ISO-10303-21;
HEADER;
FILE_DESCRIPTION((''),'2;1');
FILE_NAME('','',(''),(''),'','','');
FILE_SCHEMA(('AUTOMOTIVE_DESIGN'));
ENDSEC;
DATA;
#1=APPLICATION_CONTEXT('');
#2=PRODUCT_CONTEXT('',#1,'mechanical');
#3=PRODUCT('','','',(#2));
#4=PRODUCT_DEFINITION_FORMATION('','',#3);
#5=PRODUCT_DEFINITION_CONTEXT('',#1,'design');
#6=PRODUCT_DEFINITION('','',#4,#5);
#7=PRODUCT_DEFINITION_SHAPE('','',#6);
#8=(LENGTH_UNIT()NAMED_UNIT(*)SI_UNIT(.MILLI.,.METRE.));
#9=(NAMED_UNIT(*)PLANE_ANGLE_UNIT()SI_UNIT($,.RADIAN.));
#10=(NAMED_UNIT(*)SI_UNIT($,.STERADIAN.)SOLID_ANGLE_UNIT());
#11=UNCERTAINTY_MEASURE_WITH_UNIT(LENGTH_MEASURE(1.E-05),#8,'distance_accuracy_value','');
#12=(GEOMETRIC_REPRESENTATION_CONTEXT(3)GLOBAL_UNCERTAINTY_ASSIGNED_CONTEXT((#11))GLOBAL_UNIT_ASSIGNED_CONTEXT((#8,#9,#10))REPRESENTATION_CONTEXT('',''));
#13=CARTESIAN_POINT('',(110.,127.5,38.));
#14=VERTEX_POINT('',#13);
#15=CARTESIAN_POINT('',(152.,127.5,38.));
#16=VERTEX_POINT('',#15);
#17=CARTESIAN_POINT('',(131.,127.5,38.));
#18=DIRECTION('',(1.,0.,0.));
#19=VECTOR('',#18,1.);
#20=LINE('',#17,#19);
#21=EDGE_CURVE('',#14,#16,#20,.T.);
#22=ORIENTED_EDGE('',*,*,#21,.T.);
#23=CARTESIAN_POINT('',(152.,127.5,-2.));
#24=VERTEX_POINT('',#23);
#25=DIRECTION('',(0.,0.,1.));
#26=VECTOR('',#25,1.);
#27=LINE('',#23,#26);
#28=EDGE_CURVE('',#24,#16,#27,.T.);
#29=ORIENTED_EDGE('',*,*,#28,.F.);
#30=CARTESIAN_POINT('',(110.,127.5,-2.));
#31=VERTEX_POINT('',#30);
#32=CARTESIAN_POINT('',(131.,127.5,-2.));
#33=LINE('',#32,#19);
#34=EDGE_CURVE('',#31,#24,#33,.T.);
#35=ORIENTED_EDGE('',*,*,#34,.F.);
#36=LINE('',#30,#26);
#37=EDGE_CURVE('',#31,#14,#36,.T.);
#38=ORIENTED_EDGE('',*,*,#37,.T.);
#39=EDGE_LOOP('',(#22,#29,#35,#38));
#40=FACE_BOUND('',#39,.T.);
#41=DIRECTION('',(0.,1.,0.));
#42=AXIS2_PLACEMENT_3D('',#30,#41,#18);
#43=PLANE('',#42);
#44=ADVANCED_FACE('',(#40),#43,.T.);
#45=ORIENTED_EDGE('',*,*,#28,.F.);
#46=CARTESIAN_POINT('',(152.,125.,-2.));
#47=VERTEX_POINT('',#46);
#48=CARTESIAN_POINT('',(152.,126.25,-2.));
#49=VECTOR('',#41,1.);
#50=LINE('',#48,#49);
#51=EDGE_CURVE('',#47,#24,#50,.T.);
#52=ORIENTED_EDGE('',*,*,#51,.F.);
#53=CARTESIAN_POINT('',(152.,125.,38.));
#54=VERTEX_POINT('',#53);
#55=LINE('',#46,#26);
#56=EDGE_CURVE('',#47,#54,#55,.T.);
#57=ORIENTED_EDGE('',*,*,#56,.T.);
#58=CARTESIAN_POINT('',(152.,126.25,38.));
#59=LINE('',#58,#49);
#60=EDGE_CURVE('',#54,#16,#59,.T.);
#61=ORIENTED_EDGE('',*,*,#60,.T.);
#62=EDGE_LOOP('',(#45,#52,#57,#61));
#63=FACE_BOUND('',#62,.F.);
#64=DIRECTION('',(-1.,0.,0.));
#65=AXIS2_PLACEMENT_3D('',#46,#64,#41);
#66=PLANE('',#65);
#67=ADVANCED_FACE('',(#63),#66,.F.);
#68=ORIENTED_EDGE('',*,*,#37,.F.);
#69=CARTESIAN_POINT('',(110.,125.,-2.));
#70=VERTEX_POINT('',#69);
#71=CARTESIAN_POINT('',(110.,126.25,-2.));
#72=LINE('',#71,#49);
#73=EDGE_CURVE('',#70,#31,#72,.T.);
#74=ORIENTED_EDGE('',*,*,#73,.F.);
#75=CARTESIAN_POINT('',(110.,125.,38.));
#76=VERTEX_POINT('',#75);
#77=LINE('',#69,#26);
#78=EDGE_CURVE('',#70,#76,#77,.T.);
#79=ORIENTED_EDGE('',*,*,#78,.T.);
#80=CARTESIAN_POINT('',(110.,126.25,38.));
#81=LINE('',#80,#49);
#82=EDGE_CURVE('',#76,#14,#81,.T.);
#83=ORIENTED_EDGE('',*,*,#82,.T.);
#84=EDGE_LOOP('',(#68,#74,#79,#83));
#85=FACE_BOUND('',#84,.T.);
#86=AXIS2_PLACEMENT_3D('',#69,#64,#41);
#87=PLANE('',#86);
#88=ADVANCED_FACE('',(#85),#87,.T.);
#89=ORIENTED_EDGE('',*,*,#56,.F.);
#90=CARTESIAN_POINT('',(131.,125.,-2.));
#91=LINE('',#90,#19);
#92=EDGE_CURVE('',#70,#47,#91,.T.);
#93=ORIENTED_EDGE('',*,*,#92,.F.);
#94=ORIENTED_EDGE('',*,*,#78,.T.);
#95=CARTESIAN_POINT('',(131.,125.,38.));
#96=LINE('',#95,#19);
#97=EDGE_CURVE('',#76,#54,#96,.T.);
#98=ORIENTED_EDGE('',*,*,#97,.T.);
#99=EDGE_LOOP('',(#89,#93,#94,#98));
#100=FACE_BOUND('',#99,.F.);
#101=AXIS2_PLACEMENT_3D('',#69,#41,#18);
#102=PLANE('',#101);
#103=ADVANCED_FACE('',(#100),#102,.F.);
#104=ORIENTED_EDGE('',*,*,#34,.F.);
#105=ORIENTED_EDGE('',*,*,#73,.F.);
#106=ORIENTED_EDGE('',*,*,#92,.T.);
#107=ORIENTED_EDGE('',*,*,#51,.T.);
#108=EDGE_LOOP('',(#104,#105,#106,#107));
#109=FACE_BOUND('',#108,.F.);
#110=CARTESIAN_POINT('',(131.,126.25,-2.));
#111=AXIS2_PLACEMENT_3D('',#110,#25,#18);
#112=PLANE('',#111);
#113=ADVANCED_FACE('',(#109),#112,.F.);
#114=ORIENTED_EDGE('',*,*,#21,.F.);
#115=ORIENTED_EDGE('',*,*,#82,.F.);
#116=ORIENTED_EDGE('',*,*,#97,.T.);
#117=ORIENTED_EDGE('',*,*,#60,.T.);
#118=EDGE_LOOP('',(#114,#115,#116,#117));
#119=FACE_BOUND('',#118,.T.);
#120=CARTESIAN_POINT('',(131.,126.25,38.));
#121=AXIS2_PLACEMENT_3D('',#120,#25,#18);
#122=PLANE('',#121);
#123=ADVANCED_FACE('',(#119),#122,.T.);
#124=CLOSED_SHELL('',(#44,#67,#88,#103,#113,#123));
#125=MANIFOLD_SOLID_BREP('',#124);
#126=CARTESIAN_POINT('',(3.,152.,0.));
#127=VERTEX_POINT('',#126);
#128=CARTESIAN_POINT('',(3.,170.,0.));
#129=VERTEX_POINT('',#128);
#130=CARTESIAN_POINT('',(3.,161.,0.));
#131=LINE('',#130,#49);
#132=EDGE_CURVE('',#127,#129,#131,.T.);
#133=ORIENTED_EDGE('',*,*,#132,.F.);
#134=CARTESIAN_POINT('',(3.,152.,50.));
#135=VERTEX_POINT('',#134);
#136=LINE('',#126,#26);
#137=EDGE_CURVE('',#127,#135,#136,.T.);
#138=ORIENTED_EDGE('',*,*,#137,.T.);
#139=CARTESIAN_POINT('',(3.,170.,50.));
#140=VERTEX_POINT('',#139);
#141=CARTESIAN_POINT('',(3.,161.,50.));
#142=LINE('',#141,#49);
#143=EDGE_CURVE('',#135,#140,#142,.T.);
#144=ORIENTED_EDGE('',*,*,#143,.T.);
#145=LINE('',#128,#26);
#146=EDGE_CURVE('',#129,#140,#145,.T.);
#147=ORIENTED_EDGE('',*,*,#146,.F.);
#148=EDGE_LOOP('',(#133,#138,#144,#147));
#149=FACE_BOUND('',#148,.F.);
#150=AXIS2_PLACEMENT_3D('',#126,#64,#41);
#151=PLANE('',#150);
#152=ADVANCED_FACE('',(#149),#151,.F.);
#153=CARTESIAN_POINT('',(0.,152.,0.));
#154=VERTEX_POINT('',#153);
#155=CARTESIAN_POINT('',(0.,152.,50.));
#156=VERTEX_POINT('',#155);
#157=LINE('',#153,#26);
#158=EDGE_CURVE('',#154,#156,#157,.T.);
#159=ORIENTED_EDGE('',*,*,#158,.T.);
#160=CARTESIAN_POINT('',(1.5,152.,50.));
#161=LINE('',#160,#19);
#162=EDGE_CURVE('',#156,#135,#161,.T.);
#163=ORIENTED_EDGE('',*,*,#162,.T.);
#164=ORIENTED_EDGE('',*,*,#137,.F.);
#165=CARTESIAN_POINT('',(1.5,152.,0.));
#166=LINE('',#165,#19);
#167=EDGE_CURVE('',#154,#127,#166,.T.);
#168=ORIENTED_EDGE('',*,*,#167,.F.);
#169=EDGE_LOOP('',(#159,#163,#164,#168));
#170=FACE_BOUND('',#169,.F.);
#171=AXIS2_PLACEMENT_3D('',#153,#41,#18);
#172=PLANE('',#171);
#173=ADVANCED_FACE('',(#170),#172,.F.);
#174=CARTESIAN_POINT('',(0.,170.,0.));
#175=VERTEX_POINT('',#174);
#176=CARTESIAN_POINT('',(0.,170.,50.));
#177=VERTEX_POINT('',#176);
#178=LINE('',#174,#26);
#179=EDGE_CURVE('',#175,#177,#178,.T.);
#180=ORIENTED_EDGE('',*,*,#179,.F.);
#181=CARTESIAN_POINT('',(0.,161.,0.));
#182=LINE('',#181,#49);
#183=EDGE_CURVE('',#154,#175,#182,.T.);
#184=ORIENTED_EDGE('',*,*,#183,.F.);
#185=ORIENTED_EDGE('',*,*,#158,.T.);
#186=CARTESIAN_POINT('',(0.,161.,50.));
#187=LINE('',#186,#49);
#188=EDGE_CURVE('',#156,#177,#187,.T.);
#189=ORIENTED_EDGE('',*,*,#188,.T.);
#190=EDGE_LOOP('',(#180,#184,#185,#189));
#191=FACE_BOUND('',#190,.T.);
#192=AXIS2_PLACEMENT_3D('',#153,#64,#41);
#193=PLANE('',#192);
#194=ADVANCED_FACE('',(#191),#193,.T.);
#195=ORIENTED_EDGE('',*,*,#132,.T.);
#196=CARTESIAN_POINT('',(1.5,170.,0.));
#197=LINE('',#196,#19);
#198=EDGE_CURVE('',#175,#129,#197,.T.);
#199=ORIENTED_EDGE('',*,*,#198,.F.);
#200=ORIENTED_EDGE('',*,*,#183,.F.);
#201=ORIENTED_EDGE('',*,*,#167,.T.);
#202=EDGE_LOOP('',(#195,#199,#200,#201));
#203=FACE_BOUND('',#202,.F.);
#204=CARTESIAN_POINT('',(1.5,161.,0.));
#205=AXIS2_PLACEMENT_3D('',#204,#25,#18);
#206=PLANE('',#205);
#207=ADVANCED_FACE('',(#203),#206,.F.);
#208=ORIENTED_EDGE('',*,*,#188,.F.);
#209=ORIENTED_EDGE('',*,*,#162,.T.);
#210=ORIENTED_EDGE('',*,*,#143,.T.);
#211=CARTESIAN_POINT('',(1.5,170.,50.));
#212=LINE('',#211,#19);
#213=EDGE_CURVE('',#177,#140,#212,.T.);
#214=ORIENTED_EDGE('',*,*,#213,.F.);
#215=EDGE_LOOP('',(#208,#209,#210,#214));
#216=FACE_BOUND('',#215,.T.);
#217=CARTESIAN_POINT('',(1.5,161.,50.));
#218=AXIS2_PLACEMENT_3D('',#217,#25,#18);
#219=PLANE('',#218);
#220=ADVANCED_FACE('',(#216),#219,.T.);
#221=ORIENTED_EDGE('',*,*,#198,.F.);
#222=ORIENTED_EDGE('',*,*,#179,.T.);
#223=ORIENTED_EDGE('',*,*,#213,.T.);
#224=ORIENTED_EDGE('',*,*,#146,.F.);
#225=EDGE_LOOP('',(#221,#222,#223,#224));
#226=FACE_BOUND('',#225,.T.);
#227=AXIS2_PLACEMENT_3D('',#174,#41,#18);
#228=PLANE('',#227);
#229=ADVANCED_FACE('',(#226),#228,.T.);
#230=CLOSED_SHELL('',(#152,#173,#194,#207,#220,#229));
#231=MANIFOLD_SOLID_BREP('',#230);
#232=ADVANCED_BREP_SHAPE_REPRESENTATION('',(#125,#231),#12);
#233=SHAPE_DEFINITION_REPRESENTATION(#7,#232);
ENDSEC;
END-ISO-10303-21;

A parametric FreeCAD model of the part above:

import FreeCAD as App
import Part
import Sketcher
Q = App.Units.Quantity


def add_polygon(sketch, points):
    """Adds a closed chain of lines whose ends are joined by coincident constraints."""
    first, n = sketch.GeometryCount, len(points)
    for a, b in zip(points, points[1:] + points[:1]):
        sketch.addGeometry(Part.LineSegment(App.Vector(*a, 0), App.Vector(*b, 0)), False)
    for i in range(n):
        sketch.addConstraint(Sketcher.Constraint("Coincident", first + i, 2, first + (i + 1) % n, 1))

doc = App.newDocument("Part")
body = doc.addObject("PartDesign::Body", "Body")

# Sketch on XY plane
sketch1 = doc.addObject("Sketcher::SketchObject", "Sketch")
body.addObject(sketch1)
sketch1.AttachmentSupport = (doc.XY_Plane, [""])
sketch1.MapMode = "FlatFace"
sketch1.AttachmentOffset = App.Placement(App.Vector(0, 0, -2), App.Rotation())
add_polygon(sketch1, [(110, 127.5), (110, 125), (152, 125), (152, 127.5)])  # lines 0-3
sketch1.addConstraint(Sketcher.Constraint("Vertical", 0))
sketch1.addConstraint(Sketcher.Constraint("Horizontal", 1))
sketch1.addConstraint(Sketcher.Constraint("Vertical", 2))
sketch1.addConstraint(Sketcher.Constraint("Horizontal", 3))
sketch1.addConstraint(Sketcher.Constraint("DistanceX", 1, 1, 1, 2, Q("42 mm")))
sketch1.addConstraint(Sketcher.Constraint("DistanceY", 0, 2, 0, 1, Q("2.5 mm")))
sketch1.addConstraint(Sketcher.Constraint("DistanceX", -1, 1, 0, 2, Q("110 mm")))
sketch1.addConstraint(Sketcher.Constraint("DistanceY", -1, 1, 0, 2, Q("125 mm")))
pad1 = doc.addObject("PartDesign::Pad", "Pad")
body.addObject(pad1)
pad1.Profile = sketch1
pad1.Length = 40
body2 = doc.addObject("PartDesign::Body", "Body001")
body2.AllowCompound = True

# Sketch on XY plane
sketch2 = doc.addObject("Sketcher::SketchObject", "Sketch001")
body2.addObject(sketch2)
sketch2.AttachmentSupport = (doc.getObject("XY_Plane001"), [""])
sketch2.MapMode = "FlatFace"
add_polygon(sketch2, [(0, 170), (0, 152), (3, 152), (3, 170)])  # lines 0-3
sketch2.addConstraint(Sketcher.Constraint("Vertical", 0))
sketch2.addConstraint(Sketcher.Constraint("Horizontal", 1))
sketch2.addConstraint(Sketcher.Constraint("Vertical", 2))
sketch2.addConstraint(Sketcher.Constraint("Horizontal", 3))
sketch2.addConstraint(Sketcher.Constraint("PointOnObject", 0, 2, -2))
sketch2.addConstraint(Sketcher.Constraint("DistanceX", 1, 1, 1, 2, Q("3 mm")))
sketch2.addConstraint(Sketcher.Constraint("DistanceY", 0, 2, 0, 1, Q("18 mm")))
sketch2.addConstraint(Sketcher.Constraint("DistanceY", -1, 1, 0, 2, Q("152 mm")))
pad2 = doc.addObject("PartDesign::Pad", "Pad001")
body2.addObject(pad2)
pad2.Profile = sketch2
pad2.Length = 50
doc.recompute()

boolean = doc.addObject("PartDesign::Boolean", "Boolean")
body2.addObject(boolean)
boolean.Type = "Fuse"
boolean.addObjects([body])

doc.recompute()
